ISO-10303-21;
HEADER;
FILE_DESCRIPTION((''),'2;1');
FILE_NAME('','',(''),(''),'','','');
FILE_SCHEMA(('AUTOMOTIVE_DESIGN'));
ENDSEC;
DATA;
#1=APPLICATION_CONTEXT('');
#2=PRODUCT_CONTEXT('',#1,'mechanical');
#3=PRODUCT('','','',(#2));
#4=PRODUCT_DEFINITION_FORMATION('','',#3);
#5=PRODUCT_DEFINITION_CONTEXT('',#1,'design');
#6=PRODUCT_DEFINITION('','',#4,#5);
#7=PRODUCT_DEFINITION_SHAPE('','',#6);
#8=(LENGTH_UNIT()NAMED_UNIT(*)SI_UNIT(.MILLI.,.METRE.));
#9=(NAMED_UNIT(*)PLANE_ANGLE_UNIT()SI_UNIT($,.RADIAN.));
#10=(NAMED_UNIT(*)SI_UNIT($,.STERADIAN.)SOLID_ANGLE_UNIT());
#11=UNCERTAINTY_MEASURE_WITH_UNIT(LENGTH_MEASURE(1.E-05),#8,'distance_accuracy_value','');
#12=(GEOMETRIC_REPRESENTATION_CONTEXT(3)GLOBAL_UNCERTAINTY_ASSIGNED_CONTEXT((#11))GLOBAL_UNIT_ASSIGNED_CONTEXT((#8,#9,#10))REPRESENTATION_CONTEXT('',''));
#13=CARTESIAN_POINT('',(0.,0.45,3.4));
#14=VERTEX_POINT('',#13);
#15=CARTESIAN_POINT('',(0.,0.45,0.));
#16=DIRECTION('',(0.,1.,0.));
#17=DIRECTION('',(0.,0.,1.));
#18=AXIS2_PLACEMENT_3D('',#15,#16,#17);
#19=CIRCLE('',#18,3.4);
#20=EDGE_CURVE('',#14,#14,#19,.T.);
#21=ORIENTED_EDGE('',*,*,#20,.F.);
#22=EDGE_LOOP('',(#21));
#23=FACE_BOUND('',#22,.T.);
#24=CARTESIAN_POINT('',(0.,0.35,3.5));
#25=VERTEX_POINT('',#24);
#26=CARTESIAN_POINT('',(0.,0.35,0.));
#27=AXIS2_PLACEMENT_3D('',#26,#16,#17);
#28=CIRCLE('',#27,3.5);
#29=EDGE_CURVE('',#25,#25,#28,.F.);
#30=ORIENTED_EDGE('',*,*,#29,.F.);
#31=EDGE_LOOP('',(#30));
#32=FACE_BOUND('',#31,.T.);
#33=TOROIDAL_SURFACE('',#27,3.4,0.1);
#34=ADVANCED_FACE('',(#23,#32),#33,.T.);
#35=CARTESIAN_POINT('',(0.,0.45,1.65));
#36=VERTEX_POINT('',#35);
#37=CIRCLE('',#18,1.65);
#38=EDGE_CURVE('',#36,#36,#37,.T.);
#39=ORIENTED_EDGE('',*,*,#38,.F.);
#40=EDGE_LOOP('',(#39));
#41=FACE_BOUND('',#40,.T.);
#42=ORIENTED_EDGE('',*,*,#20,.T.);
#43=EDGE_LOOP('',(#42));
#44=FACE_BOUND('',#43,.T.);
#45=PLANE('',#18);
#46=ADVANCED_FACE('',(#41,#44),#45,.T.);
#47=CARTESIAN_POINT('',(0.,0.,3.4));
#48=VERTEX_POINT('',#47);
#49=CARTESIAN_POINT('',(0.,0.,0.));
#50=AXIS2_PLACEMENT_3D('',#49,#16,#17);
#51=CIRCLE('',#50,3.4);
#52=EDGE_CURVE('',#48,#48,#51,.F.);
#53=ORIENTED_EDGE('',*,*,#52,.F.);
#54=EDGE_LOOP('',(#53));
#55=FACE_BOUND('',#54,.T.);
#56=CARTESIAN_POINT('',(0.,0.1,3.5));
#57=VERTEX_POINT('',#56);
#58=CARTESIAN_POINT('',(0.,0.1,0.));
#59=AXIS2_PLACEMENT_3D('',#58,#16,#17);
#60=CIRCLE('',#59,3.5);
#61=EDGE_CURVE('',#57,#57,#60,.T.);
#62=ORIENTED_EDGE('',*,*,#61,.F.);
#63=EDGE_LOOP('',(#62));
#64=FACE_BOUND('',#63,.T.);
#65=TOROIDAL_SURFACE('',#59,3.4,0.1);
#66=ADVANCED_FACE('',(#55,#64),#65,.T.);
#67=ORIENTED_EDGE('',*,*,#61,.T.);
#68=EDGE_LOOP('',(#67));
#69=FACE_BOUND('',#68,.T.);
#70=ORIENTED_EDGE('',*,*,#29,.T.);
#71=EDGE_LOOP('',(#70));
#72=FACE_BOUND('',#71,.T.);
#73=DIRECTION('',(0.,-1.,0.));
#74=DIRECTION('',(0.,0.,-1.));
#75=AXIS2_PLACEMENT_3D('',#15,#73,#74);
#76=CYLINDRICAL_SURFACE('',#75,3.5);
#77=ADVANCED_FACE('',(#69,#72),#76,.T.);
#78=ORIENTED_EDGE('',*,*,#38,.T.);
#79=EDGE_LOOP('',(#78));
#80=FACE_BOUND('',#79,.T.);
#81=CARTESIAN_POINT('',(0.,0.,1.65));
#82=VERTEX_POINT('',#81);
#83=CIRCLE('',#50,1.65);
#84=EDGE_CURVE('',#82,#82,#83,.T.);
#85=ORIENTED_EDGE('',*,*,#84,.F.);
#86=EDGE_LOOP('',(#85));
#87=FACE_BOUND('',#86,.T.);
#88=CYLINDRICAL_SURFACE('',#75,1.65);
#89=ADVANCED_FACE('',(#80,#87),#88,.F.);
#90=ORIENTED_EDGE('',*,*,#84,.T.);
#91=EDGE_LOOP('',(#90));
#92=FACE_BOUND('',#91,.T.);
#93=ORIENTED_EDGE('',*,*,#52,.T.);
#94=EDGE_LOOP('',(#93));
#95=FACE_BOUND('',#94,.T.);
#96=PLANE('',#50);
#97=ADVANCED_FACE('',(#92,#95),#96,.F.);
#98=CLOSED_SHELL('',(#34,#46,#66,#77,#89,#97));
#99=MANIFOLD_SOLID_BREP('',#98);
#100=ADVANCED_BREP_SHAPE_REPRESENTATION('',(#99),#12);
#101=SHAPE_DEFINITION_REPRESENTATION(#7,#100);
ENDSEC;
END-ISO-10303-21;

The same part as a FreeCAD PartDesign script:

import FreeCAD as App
import Part
import Sketcher
from FreeCAD import Vector
Q = App.Units.Quantity


def edges_at(feature, points):
    """Names of the edges that pass closest to the given points."""
    edges = feature.Shape.Edges
    near = lambda p: min(range(len(edges)), key=lambda i: edges[i].distToShape(Part.Vertex(*p))[0])
    return sorted({f"Edge{near(p) + 1}" for p in points})

doc = App.newDocument("Part")
params = doc.addObject("Spreadsheet::Sheet", "Params")
for row, (alias, value) in enumerate([
    ("sketch1_diameter", "7 mm"),
    ("sketch1_diameter2", "3.3 mm"),
    ("pad1_length", "0.45 mm"),
    ("fillet_radius", "0.1 mm"),
], start=1):
    params.set(f"A{row}", alias)
    params.set(f"B{row}", "=" + value)
    params.setAlias(f"B{row}", alias)

body = doc.addObject("PartDesign::Body", "Body")

sketch1 = body.newObject("Sketcher::SketchObject", "Sketch")
sketch1.AttachmentSupport = (doc.getObject("XZ_Plane"), [""])
sketch1.MapMode = "FlatFace"
sketch1.addGeometry([
    Part.Circle(Vector(0, 0, 0), Vector(0, 0, 1), 3.5),
    Part.Circle(Vector(0, 0, 0), Vector(0, 0, 1), 1.6),
], False)
sketch1.addConstraint([
    Sketcher.Constraint("Coincident", 0, 3, -1, 1),
    Sketcher.Constraint("Coincident", 1, 3, -1, 1),
    Sketcher.Constraint("Diameter", 0, Q("7 mm")),
    Sketcher.Constraint("Diameter", 1, Q("3.3 mm")),
])
sketch1.setExpression("Constraints[2]", "Params.sketch1_diameter")
sketch1.setExpression("Constraints[3]", "Params.sketch1_diameter2")
pad1 = body.newObject("PartDesign::Pad", "Pad")
pad1.Profile = sketch1
pad1.setExpression("Length", "Params.pad1_length")
pad1.Reversed = True
doc.recompute()

fillet = body.newObject("PartDesign::Fillet", "Fillet")
fillet.Base = (pad1, edges_at(pad1, [(0, 0, -3.5), (0, 0.45, -3.5)]))
fillet.setExpression("Radius", "Params.fillet_radius")

doc.recompute()
